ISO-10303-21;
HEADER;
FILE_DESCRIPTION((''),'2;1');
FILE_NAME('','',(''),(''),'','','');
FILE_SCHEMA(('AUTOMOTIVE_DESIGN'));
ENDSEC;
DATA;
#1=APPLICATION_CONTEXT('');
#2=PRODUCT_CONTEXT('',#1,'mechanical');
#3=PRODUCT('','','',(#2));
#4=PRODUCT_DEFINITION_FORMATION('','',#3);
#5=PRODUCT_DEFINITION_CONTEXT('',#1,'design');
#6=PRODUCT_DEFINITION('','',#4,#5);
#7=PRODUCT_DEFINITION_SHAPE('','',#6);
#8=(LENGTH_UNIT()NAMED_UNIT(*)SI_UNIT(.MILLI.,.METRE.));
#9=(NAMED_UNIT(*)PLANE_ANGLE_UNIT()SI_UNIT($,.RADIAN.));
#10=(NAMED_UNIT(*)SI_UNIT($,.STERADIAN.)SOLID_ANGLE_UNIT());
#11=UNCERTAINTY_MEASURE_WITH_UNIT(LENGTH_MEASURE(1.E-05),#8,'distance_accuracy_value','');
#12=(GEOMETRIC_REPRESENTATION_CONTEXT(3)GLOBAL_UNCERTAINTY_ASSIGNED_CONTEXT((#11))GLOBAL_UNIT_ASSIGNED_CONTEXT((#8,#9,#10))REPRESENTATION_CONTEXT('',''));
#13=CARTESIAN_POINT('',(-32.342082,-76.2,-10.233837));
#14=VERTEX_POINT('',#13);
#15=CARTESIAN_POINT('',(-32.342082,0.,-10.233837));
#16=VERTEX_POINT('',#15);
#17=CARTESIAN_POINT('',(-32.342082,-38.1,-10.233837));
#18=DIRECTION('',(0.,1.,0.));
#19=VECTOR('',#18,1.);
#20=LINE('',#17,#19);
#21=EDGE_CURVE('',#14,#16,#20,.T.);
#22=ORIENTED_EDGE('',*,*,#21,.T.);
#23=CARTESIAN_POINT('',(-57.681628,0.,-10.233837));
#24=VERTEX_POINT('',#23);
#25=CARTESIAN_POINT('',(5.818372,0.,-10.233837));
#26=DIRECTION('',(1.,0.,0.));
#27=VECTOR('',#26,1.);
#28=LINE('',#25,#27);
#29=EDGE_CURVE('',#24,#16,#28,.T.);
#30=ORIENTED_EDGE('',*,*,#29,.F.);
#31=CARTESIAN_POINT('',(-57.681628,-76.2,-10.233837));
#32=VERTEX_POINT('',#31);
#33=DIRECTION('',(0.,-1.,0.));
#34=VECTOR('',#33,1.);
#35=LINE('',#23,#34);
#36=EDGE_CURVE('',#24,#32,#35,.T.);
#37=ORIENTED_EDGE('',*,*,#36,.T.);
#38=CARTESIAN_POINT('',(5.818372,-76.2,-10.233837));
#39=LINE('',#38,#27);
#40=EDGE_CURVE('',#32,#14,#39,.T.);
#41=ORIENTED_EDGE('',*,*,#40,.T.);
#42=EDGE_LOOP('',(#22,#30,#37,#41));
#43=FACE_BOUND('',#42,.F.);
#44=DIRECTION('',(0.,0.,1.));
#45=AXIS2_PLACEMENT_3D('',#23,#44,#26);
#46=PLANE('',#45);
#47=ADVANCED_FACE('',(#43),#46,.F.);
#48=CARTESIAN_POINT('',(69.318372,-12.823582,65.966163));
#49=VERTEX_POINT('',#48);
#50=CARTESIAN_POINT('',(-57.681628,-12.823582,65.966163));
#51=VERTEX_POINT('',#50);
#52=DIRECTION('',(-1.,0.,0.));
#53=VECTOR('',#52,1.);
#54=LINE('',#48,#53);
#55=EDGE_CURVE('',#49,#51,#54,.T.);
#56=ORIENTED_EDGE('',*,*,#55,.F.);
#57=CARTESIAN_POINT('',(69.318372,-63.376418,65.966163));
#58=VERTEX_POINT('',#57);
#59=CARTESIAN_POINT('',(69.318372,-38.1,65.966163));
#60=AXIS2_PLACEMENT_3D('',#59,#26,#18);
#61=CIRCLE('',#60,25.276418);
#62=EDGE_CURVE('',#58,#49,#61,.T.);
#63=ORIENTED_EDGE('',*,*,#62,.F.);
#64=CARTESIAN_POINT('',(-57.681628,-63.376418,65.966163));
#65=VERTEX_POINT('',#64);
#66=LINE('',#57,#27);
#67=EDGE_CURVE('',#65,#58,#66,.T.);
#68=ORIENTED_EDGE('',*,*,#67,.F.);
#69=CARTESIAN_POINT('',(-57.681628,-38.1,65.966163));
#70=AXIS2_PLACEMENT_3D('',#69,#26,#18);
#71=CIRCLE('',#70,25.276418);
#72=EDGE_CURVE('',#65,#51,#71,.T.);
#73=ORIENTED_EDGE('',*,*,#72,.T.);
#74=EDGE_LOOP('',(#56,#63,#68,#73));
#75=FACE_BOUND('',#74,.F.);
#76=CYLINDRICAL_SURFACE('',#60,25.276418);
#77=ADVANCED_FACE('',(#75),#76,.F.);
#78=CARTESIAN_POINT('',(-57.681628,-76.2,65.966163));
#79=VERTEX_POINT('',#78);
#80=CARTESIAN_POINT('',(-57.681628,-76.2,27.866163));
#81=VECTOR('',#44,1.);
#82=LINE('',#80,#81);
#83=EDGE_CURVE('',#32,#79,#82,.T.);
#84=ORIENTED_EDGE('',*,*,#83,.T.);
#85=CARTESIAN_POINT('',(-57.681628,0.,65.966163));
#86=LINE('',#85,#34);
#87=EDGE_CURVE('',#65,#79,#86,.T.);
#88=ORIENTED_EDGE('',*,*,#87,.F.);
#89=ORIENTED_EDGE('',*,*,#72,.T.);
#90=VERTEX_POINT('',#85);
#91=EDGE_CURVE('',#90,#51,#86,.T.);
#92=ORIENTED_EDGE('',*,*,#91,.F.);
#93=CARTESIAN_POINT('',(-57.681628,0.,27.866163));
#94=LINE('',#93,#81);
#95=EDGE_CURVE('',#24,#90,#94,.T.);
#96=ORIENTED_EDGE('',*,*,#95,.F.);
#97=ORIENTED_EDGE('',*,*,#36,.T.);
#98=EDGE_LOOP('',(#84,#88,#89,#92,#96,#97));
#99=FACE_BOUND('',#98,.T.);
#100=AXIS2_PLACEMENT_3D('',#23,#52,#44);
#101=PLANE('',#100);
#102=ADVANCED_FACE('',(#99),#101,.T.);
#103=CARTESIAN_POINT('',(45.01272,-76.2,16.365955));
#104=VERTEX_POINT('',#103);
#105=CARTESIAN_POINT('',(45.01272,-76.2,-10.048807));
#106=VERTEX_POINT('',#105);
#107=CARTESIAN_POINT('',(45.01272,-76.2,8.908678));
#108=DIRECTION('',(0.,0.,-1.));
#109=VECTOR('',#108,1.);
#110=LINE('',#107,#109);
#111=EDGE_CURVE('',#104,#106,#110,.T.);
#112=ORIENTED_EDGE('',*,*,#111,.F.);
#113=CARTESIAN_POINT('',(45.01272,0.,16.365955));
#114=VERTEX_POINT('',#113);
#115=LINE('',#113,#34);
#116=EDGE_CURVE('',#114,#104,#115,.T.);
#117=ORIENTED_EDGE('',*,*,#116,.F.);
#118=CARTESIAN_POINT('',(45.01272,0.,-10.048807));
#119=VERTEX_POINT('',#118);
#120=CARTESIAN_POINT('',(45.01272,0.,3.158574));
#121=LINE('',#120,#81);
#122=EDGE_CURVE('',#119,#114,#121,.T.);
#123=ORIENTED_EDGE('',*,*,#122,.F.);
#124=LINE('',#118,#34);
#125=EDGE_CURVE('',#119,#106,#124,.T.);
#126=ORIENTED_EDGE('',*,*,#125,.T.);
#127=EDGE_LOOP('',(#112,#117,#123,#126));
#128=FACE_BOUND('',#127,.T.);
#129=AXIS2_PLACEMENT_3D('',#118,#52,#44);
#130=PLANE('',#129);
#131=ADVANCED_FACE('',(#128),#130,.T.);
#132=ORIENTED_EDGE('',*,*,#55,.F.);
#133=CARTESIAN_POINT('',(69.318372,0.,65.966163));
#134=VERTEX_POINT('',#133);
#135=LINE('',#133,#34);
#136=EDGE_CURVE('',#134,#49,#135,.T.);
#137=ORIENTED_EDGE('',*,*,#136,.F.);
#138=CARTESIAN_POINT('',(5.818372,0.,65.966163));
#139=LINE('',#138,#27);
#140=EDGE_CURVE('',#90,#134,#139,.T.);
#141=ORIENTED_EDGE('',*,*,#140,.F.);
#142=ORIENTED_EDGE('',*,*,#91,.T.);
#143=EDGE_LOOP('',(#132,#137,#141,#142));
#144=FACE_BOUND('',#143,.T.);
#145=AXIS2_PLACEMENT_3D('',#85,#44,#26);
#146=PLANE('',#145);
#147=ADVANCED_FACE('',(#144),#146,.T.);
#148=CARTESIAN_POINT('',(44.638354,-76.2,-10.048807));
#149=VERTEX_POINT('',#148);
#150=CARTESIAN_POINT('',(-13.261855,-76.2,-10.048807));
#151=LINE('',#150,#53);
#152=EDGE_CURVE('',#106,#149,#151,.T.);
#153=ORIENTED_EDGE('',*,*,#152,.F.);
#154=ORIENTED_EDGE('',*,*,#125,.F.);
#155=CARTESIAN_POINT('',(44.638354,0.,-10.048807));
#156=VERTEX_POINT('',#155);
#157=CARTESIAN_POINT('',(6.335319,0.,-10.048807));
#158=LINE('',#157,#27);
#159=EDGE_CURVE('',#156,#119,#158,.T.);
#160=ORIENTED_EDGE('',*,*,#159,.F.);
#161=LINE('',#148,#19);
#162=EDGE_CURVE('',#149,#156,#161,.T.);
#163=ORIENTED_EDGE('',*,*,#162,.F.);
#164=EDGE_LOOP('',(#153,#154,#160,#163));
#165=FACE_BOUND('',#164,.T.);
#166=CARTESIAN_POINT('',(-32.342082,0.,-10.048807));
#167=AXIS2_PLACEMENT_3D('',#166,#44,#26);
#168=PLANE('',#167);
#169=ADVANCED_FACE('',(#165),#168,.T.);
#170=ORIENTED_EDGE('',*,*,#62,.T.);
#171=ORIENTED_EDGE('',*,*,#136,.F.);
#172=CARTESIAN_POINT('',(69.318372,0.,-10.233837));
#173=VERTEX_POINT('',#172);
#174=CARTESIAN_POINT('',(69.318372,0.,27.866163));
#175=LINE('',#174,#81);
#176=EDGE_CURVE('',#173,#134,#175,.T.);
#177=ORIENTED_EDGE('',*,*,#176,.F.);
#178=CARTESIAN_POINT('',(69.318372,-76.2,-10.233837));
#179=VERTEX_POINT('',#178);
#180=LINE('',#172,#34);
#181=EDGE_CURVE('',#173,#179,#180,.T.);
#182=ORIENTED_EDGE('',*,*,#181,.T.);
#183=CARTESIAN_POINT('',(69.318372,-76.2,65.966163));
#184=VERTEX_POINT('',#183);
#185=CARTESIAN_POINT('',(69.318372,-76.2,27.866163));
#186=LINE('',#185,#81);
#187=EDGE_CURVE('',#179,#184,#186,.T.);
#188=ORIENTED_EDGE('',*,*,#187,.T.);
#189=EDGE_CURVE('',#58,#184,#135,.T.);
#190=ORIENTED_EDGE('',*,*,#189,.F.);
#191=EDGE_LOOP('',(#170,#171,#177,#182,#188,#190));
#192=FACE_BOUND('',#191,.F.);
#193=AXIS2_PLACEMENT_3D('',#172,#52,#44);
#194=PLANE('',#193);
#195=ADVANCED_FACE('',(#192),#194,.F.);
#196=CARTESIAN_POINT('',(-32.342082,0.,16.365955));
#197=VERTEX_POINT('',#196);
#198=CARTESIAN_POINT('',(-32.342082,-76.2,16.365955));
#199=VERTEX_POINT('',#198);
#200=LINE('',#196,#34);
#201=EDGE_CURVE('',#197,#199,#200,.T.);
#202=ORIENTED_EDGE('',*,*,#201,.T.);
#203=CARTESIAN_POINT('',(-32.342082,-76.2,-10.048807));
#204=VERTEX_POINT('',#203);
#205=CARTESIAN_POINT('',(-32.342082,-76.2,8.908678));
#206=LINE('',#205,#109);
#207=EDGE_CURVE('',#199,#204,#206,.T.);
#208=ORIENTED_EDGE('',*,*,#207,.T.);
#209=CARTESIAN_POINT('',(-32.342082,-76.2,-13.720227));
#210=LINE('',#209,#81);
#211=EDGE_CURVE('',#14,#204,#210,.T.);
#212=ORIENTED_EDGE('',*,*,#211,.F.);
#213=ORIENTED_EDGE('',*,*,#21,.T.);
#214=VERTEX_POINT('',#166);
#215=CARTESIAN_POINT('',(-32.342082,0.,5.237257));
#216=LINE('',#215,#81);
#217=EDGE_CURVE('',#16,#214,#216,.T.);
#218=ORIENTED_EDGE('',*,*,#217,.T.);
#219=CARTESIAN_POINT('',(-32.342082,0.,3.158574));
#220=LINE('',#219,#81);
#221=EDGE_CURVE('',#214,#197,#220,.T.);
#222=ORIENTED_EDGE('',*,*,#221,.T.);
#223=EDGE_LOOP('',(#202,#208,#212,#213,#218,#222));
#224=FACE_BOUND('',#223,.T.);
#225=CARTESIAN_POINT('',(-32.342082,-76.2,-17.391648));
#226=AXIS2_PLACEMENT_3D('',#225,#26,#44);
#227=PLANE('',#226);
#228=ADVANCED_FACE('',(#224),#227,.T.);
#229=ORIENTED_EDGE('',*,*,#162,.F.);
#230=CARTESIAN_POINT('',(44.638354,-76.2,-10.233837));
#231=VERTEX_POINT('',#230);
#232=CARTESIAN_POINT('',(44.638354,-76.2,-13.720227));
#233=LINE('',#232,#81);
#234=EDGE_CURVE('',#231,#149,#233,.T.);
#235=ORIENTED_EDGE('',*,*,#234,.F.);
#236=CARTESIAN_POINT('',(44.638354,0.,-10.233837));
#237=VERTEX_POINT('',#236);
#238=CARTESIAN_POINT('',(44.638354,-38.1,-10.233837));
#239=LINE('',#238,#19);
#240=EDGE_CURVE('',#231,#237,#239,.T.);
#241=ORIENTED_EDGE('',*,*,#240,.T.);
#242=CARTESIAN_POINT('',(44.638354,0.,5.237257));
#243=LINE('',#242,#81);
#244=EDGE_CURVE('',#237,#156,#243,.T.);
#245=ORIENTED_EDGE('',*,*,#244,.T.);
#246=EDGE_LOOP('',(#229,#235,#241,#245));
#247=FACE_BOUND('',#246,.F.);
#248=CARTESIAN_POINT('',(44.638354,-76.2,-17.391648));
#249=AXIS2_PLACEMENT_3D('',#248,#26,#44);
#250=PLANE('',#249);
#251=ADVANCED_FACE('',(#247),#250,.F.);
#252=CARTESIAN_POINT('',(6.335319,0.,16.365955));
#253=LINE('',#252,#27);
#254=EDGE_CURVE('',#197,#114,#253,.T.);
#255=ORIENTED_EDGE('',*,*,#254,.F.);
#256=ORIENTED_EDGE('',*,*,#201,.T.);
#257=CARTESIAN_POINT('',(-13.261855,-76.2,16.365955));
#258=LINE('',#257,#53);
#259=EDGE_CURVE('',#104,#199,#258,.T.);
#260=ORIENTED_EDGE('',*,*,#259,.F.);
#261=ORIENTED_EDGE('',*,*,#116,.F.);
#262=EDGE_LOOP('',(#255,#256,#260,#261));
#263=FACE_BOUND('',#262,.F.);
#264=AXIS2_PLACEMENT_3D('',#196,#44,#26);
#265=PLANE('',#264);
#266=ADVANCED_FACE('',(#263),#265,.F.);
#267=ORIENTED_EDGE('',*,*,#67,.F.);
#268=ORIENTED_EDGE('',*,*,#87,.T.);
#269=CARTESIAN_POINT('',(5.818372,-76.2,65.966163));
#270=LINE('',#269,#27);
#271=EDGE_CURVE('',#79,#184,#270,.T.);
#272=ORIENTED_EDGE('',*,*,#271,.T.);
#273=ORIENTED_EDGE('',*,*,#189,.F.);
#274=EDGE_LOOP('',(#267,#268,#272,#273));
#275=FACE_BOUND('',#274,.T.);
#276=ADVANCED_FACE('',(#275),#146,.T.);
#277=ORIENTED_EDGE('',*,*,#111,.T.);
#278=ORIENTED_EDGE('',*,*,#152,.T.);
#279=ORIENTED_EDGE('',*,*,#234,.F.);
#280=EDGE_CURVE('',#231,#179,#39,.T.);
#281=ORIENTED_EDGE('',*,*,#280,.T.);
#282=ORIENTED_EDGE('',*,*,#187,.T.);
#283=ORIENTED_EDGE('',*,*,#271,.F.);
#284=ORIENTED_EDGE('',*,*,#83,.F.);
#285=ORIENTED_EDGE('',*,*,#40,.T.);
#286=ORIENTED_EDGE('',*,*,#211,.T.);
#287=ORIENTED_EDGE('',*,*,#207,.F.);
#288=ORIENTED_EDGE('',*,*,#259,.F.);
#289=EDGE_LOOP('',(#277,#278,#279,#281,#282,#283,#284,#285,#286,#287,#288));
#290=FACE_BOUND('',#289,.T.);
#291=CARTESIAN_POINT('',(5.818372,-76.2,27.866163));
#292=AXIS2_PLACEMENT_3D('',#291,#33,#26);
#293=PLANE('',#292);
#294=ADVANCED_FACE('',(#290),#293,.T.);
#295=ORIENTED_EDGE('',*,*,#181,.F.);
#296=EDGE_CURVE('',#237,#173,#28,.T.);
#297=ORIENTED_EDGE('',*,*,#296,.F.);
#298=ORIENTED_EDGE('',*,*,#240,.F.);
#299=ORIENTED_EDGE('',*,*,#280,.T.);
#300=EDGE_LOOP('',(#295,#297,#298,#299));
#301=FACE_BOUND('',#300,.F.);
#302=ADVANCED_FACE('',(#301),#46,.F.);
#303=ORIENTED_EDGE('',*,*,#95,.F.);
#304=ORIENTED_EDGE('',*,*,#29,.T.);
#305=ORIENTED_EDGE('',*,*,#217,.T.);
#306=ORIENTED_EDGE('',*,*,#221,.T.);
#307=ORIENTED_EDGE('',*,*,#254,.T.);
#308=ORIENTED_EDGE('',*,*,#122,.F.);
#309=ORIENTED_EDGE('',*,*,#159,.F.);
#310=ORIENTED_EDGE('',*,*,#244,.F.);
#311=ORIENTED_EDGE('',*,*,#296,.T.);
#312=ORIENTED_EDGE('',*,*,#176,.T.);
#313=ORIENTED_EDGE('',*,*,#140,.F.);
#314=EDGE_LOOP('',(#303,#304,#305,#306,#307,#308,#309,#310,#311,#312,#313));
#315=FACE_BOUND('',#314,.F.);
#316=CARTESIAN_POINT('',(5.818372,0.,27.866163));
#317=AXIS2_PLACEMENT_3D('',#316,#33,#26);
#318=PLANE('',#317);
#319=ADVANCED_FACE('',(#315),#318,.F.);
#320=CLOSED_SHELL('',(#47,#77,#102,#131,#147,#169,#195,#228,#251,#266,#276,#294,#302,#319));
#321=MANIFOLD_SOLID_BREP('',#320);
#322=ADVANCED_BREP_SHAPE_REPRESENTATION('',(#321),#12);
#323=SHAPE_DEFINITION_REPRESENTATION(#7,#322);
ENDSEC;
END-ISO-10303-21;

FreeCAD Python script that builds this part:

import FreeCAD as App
import Part
import Sketcher
from FreeCAD import Vector
Q = App.Units.Quantity

doc = App.newDocument("Part")
body = doc.addObject("PartDesign::Body", "Body")

# Sketch on XZ plane
sketch1 = body.newObject("Sketcher::SketchObject", "Sketch")
sketch1.AttachmentSupport = (doc.getObject("XZ_Plane"), [""])
sketch1.MapMode = "FlatFace"
sketch1.addGeometry(Part.LineSegment(Vector(-58, 66, 0), Vector(-58, -10, 0)), False)
sketch1.addGeometry(Part.LineSegment(Vector(-58, -10, 0), Vector(69, -10, 0)), False)
sketch1.addGeometry(Part.LineSegment(Vector(69, -10, 0), Vector(69, 66, 0)), False)
sketch1.addGeometry(Part.LineSegment(Vector(69, 66, 0), Vector(-58, 66, 0)), False)
sketch1.addConstraint(Sketcher.Constraint("Coincident", 0, 2, 1, 1))
sketch1.addConstraint(Sketcher.Constraint("Coincident", 1, 2, 2, 1))
sketch1.addConstraint(Sketcher.Constraint("Coincident", 2, 2, 3, 1))
sketch1.addConstraint(Sketcher.Constraint("Coincident", 3, 2, 0, 1))
sketch1.addConstraint(Sketcher.Constraint("Vertical", 0))
sketch1.addConstraint(Sketcher.Constraint("Horizontal", 1))
sketch1.addConstraint(Sketcher.Constraint("Vertical", 2))
sketch1.addConstraint(Sketcher.Constraint("Horizontal", 3))
sketch1.addConstraint(Sketcher.Constraint("DistanceX", 1, 1, 1, 2, Q("5 in")))
sketch1.addConstraint(Sketcher.Constraint("DistanceY", 0, 2, 0, 1, Q("3 in")))
sketch1.addConstraint(Sketcher.Constraint("DistanceX", 0, 2, -1, 1, 57.681628))
sketch1.addConstraint(Sketcher.Constraint("DistanceY", 0, 2, -1, 1, 10.233837))
pad1 = body.newObject("PartDesign::Pad", "Pad")
pad1.Profile = sketch1
pad1.Length = Q("3 in")

# Sketch on XZ plane
sketch2 = body.newObject("Sketcher::SketchObject", "Sketch001")
sketch2.AttachmentSupport = (doc.getObject("XZ_Plane"), [""])
sketch2.MapMode = "FlatFace"
sketch2.addGeometry(Part.LineSegment(Vector(-32, 16, 0), Vector(-32, -10, 0)), False)
sketch2.addGeometry(Part.LineSegment(Vector(-32, -10, 0), Vector(45, -10, 0)), False)
sketch2.addGeometry(Part.LineSegment(Vector(45, -10, 0), Vector(45, 16, 0)), False)
sketch2.addGeometry(Part.LineSegment(Vector(45, 16, 0), Vector(-32, 16, 0)), False)
sketch2.addConstraint(Sketcher.Constraint("Coincident", 0, 2, 1, 1))
sketch2.addConstraint(Sketcher.Constraint("Coincident", 1, 2, 2, 1))
sketch2.addConstraint(Sketcher.Constraint("Coincident", 2, 2, 3, 1))
sketch2.addConstraint(Sketcher.Constraint("Coincident", 3, 2, 0, 1))
sketch2.addConstraint(Sketcher.Constraint("Vertical", 0))
sketch2.addConstraint(Sketcher.Constraint("Horizontal", 1))
sketch2.addConstraint(Sketcher.Constraint("Vertical", 2))
sketch2.addConstraint(Sketcher.Constraint("Horizontal", 3))
sketch2.addConstraint(Sketcher.Constraint("DistanceX", 1, 1, 1, 2, 77.354802))
sketch2.addConstraint(Sketcher.Constraint("DistanceY", 0, 2, 0, 1, 26.414761))
sketch2.addConstraint(Sketcher.Constraint("DistanceX", 0, 2, -1, 1, 32.342082))
sketch2.addConstraint(Sketcher.Constraint("DistanceY", 0, 2, -1, 1, 10.048807))
pocket1 = body.newObject("PartDesign::Pocket", "Pocket")
pocket1.Profile = sketch2
pocket1.Length = Q("3.47 in")
pocket1.Reversed = True

# Sketch on XZ plane
sketch3 = body.newObject("Sketcher::SketchObject", "Sketch002")
sketch3.AttachmentSupport = (doc.getObject("XZ_Plane"), [""])
sketch3.MapMode = "FlatFace"
sketch3.AttachmentOffset = App.Placement(Vector(0, 0, 3 * 25.4), App.Rotation())
sketch3.addGeometry(Part.LineSegment(Vector(-32, -10, 0), Vector(-32, -17, 0)), False)
sketch3.addGeometry(Part.LineSegment(Vector(-32, -17, 0), Vector(45, -17, 0)), False)
sketch3.addGeometry(Part.LineSegment(Vector(45, -17, 0), Vector(45, -10, 0)), False)
sketch3.addGeometry(Part.LineSegment(Vector(45, -10, 0), Vector(-32, -10, 0)), False)
sketch3.addConstraint(Sketcher.Constraint("Coincident", 0, 2, 1, 1))
sketch3.addConstraint(Sketcher.Constraint("Coincident", 1, 2, 2, 1))
sketch3.addConstraint(Sketcher.Constraint("Coincident", 2, 2, 3, 1))
sketch3.addConstraint(Sketcher.Constraint("Coincident", 3, 2, 0, 1))
sketch3.addConstraint(Sketcher.Constraint("Vertical", 0))
sketch3.addConstraint(Sketcher.Constraint("Horizontal", 1))
sketch3.addConstraint(Sketcher.Constraint("Vertical", 2))
sketch3.addConstraint(Sketcher.Constraint("Horizontal", 3))
sketch3.addConstraint(Sketcher.Constraint("DistanceY", 0, 2, 0, 1, 7.342841))
sketch3.addConstraint(Sketcher.Constraint("DistanceX", 1, 1, 1, 2, 76.980436))
sketch3.addConstraint(Sketcher.Constraint("DistanceX", 0, 2, -1, 1, 32.342082))
sketch3.addConstraint(Sketcher.Constraint("DistanceY", 0, 2, -1, 1, 17.391648))
pocket2 = body.newObject("PartDesign::Pocket", "Pocket001")
pocket2.Profile = sketch3
pocket2.Length = Q("3.7 in")

# Sketch on YZ plane
sketch4 = body.newObject("Sketcher::SketchObject", "Sketch003")
sketch4.AttachmentSupport = (doc.getObject("YZ_Plane"), [""])
sketch4.MapMode = "FlatFace"
sketch4.AttachmentOffset = App.Placement(Vector(0, 0, 69.318372), App.Rotation())
sketch4.addGeometry(Part.Circle(Vector(-38, 66, 0), Vector(0, 0, 1), 25), False)
sketch4.addConstraint(Sketcher.Constraint("DistanceX", 0, 3, -1, 1, Q("1.5 in")))
sketch4.addConstraint(Sketcher.Constraint("Diameter", 0, 50.552835))
sketch4.addConstraint(Sketcher.Constraint("DistanceY", -1, 1, 0, 3, 65.966163))
pocket3 = body.newObject("PartDesign::Pocket", "Pocket002")
pocket3.Profile = sketch4
pocket3.Length = Q("5.61 in")

doc.recompute()
